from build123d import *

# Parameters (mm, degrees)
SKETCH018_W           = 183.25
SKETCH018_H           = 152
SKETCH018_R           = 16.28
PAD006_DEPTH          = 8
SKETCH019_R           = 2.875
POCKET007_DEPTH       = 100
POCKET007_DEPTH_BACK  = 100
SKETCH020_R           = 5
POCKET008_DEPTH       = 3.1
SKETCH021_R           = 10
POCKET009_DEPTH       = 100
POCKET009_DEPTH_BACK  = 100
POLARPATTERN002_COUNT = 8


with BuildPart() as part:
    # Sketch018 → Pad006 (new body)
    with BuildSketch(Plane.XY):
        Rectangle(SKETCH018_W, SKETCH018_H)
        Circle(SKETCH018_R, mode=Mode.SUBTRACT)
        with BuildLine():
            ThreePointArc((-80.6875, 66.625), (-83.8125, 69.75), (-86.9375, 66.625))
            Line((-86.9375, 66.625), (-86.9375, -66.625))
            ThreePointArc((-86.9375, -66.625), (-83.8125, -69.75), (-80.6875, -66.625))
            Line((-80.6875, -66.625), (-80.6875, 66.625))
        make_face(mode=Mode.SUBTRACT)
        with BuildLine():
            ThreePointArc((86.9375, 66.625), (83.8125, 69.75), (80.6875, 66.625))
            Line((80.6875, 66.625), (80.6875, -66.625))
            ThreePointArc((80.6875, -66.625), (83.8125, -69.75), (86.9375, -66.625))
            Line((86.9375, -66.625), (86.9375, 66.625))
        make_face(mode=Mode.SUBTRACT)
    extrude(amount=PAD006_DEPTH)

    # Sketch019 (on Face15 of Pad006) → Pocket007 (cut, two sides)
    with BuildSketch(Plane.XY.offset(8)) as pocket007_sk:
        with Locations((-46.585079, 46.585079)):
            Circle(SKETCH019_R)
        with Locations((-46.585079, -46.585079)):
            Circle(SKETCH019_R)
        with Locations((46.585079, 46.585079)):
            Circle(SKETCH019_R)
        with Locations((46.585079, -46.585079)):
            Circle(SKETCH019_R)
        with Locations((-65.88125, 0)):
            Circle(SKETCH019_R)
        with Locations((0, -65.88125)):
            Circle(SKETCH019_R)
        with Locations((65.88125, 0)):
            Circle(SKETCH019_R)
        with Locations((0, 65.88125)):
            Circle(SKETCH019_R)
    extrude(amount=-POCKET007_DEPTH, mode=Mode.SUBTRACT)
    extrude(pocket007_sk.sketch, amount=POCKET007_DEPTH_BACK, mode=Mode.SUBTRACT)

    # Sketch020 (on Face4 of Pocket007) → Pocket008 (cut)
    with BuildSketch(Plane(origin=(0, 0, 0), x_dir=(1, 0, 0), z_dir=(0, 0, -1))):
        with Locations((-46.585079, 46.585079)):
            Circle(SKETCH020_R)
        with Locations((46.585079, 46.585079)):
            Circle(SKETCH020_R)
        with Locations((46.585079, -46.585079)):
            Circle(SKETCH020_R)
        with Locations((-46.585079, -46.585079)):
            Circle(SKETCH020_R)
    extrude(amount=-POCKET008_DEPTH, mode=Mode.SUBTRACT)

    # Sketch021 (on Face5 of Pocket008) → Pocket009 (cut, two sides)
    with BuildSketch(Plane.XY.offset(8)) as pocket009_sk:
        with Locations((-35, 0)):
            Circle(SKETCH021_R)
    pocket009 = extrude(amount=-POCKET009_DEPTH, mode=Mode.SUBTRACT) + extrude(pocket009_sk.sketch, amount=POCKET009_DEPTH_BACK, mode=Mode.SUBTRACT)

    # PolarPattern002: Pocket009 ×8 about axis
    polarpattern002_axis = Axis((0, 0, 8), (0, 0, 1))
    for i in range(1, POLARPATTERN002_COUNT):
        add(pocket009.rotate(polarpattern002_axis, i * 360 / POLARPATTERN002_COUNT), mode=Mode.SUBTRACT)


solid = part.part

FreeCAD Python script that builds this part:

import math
import FreeCAD as App
import Part
import Sketcher

doc = App.newDocument("Part")
body = doc.addObject("PartDesign::Body", "Body")

sketch1 = doc.addObject("Sketcher::SketchObject", "Sketch")
body.addObject(sketch1)
sketch1.AttachmentSupport = (doc.XY_Plane, [""])
sketch1.MapMode = "FlatFace"
sketch1.addGeometry([
    Part.LineSegment(App.Vector(-91.625, 76, 0), App.Vector(-91.625, -76, 0)),
    Part.LineSegment(App.Vector(-91.625, -76, 0), App.Vector(91.625, -76, 0)),
    Part.LineSegment(App.Vector(91.625, -76, 0), App.Vector(91.625, 76, 0)),
    Part.LineSegment(App.Vector(91.625, 76, 0), App.Vector(-91.625, 76, 0)),
    Part.ArcOfCircle(Part.Circle(App.Vector(-83.8125, 66.625, 0), App.Vector(0, 0, 1), 3.125), math.radians(0), math.radians(180)),
    Part.LineSegment(App.Vector(-80.6875, 66.625, 0), App.Vector(-80.6875, -66.625, 0)),
    Part.ArcOfCircle(Part.Circle(App.Vector(-83.8125, -66.625, 0), App.Vector(0, 0, 1), 3.125), math.radians(180), math.radians(360)),
    Part.LineSegment(App.Vector(-86.9375, -66.625, 0), App.Vector(-86.9375, 66.625, 0)),
    Part.Circle(App.Vector(0, 0, 0), App.Vector(0, 0, 1), 16.28),
    Part.ArcOfCircle(Part.Circle(App.Vector(83.8125, 66.625, 0), App.Vector(0, 0, 1), 3.125), math.radians(0), math.radians(180)),
    Part.LineSegment(App.Vector(86.9375, 66.625, 0), App.Vector(86.9375, -66.625, 0)),
    Part.ArcOfCircle(Part.Circle(App.Vector(83.8125, -66.625, 0), App.Vector(0, 0, 1), 3.125), math.radians(180), math.radians(360)),
    Part.LineSegment(App.Vector(80.6875, -66.625, 0), App.Vector(80.6875, 66.625, 0)),
], False)
sketch1.addConstraint([
    Sketcher.Constraint("Coincident", 0, 2, 1, 1),
    Sketcher.Constraint("Coincident", 1, 2, 2, 1),
    Sketcher.Constraint("Coincident", 2, 2, 3, 1),
    Sketcher.Constraint("Coincident", 3, 2, 0, 1),
    Sketcher.Constraint("Tangent", 4, 1, 5, 1),
    Sketcher.Constraint("Tangent", 5, 2, 6, 2),
    Sketcher.Constraint("Tangent", 6, 1, 7, 1),
    Sketcher.Constraint("Tangent", 7, 2, 4, 2),
    Sketcher.Constraint("Tangent", 9, 1, 10, 1),
    Sketcher.Constraint("Tangent", 10, 2, 11, 2),
    Sketcher.Constraint("Tangent", 11, 1, 12, 1),
    Sketcher.Constraint("Tangent", 12, 2, 9, 2),
    Sketcher.Constraint("Vertical", 0),
    Sketcher.Constraint("Horizontal", 1),
    Sketcher.Constraint("Vertical", 2),
    Sketcher.Constraint("Horizontal", 3),
    Sketcher.Constraint("Vertical", 5),
    Sketcher.Constraint("Vertical", 7),
    Sketcher.Constraint("Vertical", 10),
    Sketcher.Constraint("Vertical", 12),
    Sketcher.Constraint("Coincident", 8, 3, -1, 1),
    Sketcher.Constraint("Equal", 6, 9),
    Sketcher.Constraint("Symmetric", 6, 3, 9, 3, -1, 1),
    Sketcher.Constraint("Symmetric", 0, 2, 2, 2, -1, 1),
    Sketcher.Constraint("Horizontal", 4, 3, 9, 3),
    Sketcher.Constraint("Horizontal", 6, 3, 11, 3),
    Sketcher.Constraint("Diameter", 8, 32.56),
    Sketcher.Constraint("DistanceY", 0, 2, 0, 1, 152.0),
    Sketcher.Constraint("Radius", 4, 3.125),
    Sketcher.Constraint("DistanceX", 1, 1, 1, 2, 183.25),
    Sketcher.Constraint("DistanceY", 5, 2, 5, 1, 133.25),
    Sketcher.Constraint("DistanceX", 4, 3, 9, 3, 167.625),
])
pad1 = doc.addObject("PartDesign::Pad", "Pad")
body.addObject(pad1)
pad1.Profile = sketch1
pad1.Length = 8

sketch2 = doc.addObject("Sketcher::SketchObject", "Sketch001")
body.addObject(sketch2)
sketch2.AttachmentSupport = (doc.XY_Plane, [""])
sketch2.MapMode = "FlatFace"
sketch2.AttachmentOffset = App.Placement(App.Vector(0, 0, 8), App.Rotation())
sketch2.addGeometry([
    Part.Circle(App.Vector(-46.585079, 46.585079, 0), App.Vector(0, 0, 1), 2.875),
    Part.Circle(App.Vector(-46.585079, -46.585079, 0), App.Vector(0, 0, 1), 2.875),
    Part.Circle(App.Vector(46.585079, 46.585079, 0), App.Vector(0, 0, 1), 2.875),
    Part.Circle(App.Vector(46.585079, -46.585079, 0), App.Vector(0, 0, 1), 2.875),
    Part.Circle(App.Vector(-65.88125, 0, 0), App.Vector(0, 0, 1), 2.875),
    Part.Circle(App.Vector(0, -65.88125, 0), App.Vector(0, 0, 1), 2.875),
    Part.Circle(App.Vector(65.88125, 0, 0), App.Vector(0, 0, 1), 2.875),
    Part.Circle(App.Vector(0, 65.88125, 0), App.Vector(0, 0, 1), 2.875),
], False)
sketch2.addConstraint([
    Sketcher.Constraint("Equal", 0, 1),
    Sketcher.Constraint("Equal", 1, 2),
    Sketcher.Constraint("Equal", 2, 3),
    Sketcher.Constraint("Equal", 3, 4),
    Sketcher.Constraint("Equal", 4, 5),
    Sketcher.Constraint("Equal", 5, 6),
    Sketcher.Constraint("Equal", 6, 7),
    Sketcher.Constraint("Symmetric", 1, 3, 2, 3, -1, 1),
    Sketcher.Constraint("Symmetric", 0, 3, 3, 3, -1, 1),
    Sketcher.Constraint("Symmetric", 4, 3, 6, 3, -1, 1),
    Sketcher.Constraint("Symmetric", 5, 3, 7, 3, -1, 1),
    Sketcher.Constraint("Symmetric", 0, 3, 2, 3, -2),
    Sketcher.Constraint("PointOnObject", 4, 3, -1),
    Sketcher.Constraint("PointOnObject", 5, 3, -2),
    Sketcher.Constraint("Diameter", 0, 5.75),
    Sketcher.Constraint("DistanceX", 0, 3, -1, 1, 46.585079),
    Sketcher.Constraint("DistanceY", -1, 1, 0, 3, 46.585079),
    Sketcher.Constraint("DistanceX", 4, 3, -1, 1, 65.88125),
    Sketcher.Constraint("DistanceY", 5, 3, -1, 1, 65.88125),
])
pocket1 = doc.addObject("PartDesign::Pocket", "Pocket")
body.addObject(pocket1)
pocket1.Profile = sketch2
pocket1.Type = "ThroughAll"
pocket1.Midplane = True

sketch3 = doc.addObject("Sketcher::SketchObject", "Sketch002")
body.addObject(sketch3)
sketch3.AttachmentSupport = (doc.XY_Plane, [""])
sketch3.MapMode = "FlatFace"
sketch3.addGeometry([
    Part.Circle(App.Vector(-46.585079, -46.585079, 0), App.Vector(0, 0, 1), 5),
    Part.Circle(App.Vector(46.585079, -46.585079, 0), App.Vector(0, 0, 1), 5),
    Part.Circle(App.Vector(46.585079, 46.585079, 0), App.Vector(0, 0, 1), 5),
    Part.Circle(App.Vector(-46.585079, 46.585079, 0), App.Vector(0, 0, 1), 5),
], False)
sketch3.addConstraint([
    Sketcher.Constraint("Equal", 0, 1),
    Sketcher.Constraint("Equal", 1, 2),
    Sketcher.Constraint("Equal", 2, 3),
    Sketcher.Constraint("Symmetric", 0, 3, 2, 3, -1, 1),
    Sketcher.Constraint("Symmetric", 1, 3, 3, 3, -1, 1),
    Sketcher.Constraint("Symmetric", 0, 3, 1, 3, -2),
    Sketcher.Constraint("Diameter", 0, 10.0),
    Sketcher.Constraint("DistanceX", 0, 3, -1, 1, 46.585079),
    Sketcher.Constraint("DistanceY", 0, 3, -1, 1, 46.585079),
])
pocket2 = doc.addObject("PartDesign::Pocket", "Pocket001")
body.addObject(pocket2)
pocket2.Profile = sketch3
pocket2.Length = 3.1
pocket2.Reversed = True

sketch4 = doc.addObject("Sketcher::SketchObject", "Sketch003")
body.addObject(sketch4)
sketch4.AttachmentSupport = (doc.XY_Plane, [""])
sketch4.MapMode = "FlatFace"
sketch4.AttachmentOffset = App.Placement(App.Vector(0, 0, 8), App.Rotation())
sketch4.addGeometry(Part.Circle(App.Vector(-35, 0, 0), App.Vector(0, 0, 1), 10), False)
sketch4.addConstraint([
    Sketcher.Constraint("PointOnObject", 0, 3, -1),
    Sketcher.Constraint("Diameter", 0, 20.0),
    Sketcher.Constraint("DistanceX", 0, 3, -1, 1, 35.0),
])
pocket3 = doc.addObject("PartDesign::Pocket", "Pocket002")
body.addObject(pocket3)
pocket3.Profile = sketch4
pocket3.Type = "ThroughAll"
pocket3.Midplane = True
doc.recompute()

polarpattern = doc.addObject("PartDesign::PolarPattern", "PolarPattern")
body.addObject(polarpattern)
polarpattern.Originals = [pocket3]
polarpattern.Axis = (doc.Z_Axis, [""])
polarpattern.Angle = 360
polarpattern.Occurrences = 8
body.Tip = polarpattern

doc.recompute()
